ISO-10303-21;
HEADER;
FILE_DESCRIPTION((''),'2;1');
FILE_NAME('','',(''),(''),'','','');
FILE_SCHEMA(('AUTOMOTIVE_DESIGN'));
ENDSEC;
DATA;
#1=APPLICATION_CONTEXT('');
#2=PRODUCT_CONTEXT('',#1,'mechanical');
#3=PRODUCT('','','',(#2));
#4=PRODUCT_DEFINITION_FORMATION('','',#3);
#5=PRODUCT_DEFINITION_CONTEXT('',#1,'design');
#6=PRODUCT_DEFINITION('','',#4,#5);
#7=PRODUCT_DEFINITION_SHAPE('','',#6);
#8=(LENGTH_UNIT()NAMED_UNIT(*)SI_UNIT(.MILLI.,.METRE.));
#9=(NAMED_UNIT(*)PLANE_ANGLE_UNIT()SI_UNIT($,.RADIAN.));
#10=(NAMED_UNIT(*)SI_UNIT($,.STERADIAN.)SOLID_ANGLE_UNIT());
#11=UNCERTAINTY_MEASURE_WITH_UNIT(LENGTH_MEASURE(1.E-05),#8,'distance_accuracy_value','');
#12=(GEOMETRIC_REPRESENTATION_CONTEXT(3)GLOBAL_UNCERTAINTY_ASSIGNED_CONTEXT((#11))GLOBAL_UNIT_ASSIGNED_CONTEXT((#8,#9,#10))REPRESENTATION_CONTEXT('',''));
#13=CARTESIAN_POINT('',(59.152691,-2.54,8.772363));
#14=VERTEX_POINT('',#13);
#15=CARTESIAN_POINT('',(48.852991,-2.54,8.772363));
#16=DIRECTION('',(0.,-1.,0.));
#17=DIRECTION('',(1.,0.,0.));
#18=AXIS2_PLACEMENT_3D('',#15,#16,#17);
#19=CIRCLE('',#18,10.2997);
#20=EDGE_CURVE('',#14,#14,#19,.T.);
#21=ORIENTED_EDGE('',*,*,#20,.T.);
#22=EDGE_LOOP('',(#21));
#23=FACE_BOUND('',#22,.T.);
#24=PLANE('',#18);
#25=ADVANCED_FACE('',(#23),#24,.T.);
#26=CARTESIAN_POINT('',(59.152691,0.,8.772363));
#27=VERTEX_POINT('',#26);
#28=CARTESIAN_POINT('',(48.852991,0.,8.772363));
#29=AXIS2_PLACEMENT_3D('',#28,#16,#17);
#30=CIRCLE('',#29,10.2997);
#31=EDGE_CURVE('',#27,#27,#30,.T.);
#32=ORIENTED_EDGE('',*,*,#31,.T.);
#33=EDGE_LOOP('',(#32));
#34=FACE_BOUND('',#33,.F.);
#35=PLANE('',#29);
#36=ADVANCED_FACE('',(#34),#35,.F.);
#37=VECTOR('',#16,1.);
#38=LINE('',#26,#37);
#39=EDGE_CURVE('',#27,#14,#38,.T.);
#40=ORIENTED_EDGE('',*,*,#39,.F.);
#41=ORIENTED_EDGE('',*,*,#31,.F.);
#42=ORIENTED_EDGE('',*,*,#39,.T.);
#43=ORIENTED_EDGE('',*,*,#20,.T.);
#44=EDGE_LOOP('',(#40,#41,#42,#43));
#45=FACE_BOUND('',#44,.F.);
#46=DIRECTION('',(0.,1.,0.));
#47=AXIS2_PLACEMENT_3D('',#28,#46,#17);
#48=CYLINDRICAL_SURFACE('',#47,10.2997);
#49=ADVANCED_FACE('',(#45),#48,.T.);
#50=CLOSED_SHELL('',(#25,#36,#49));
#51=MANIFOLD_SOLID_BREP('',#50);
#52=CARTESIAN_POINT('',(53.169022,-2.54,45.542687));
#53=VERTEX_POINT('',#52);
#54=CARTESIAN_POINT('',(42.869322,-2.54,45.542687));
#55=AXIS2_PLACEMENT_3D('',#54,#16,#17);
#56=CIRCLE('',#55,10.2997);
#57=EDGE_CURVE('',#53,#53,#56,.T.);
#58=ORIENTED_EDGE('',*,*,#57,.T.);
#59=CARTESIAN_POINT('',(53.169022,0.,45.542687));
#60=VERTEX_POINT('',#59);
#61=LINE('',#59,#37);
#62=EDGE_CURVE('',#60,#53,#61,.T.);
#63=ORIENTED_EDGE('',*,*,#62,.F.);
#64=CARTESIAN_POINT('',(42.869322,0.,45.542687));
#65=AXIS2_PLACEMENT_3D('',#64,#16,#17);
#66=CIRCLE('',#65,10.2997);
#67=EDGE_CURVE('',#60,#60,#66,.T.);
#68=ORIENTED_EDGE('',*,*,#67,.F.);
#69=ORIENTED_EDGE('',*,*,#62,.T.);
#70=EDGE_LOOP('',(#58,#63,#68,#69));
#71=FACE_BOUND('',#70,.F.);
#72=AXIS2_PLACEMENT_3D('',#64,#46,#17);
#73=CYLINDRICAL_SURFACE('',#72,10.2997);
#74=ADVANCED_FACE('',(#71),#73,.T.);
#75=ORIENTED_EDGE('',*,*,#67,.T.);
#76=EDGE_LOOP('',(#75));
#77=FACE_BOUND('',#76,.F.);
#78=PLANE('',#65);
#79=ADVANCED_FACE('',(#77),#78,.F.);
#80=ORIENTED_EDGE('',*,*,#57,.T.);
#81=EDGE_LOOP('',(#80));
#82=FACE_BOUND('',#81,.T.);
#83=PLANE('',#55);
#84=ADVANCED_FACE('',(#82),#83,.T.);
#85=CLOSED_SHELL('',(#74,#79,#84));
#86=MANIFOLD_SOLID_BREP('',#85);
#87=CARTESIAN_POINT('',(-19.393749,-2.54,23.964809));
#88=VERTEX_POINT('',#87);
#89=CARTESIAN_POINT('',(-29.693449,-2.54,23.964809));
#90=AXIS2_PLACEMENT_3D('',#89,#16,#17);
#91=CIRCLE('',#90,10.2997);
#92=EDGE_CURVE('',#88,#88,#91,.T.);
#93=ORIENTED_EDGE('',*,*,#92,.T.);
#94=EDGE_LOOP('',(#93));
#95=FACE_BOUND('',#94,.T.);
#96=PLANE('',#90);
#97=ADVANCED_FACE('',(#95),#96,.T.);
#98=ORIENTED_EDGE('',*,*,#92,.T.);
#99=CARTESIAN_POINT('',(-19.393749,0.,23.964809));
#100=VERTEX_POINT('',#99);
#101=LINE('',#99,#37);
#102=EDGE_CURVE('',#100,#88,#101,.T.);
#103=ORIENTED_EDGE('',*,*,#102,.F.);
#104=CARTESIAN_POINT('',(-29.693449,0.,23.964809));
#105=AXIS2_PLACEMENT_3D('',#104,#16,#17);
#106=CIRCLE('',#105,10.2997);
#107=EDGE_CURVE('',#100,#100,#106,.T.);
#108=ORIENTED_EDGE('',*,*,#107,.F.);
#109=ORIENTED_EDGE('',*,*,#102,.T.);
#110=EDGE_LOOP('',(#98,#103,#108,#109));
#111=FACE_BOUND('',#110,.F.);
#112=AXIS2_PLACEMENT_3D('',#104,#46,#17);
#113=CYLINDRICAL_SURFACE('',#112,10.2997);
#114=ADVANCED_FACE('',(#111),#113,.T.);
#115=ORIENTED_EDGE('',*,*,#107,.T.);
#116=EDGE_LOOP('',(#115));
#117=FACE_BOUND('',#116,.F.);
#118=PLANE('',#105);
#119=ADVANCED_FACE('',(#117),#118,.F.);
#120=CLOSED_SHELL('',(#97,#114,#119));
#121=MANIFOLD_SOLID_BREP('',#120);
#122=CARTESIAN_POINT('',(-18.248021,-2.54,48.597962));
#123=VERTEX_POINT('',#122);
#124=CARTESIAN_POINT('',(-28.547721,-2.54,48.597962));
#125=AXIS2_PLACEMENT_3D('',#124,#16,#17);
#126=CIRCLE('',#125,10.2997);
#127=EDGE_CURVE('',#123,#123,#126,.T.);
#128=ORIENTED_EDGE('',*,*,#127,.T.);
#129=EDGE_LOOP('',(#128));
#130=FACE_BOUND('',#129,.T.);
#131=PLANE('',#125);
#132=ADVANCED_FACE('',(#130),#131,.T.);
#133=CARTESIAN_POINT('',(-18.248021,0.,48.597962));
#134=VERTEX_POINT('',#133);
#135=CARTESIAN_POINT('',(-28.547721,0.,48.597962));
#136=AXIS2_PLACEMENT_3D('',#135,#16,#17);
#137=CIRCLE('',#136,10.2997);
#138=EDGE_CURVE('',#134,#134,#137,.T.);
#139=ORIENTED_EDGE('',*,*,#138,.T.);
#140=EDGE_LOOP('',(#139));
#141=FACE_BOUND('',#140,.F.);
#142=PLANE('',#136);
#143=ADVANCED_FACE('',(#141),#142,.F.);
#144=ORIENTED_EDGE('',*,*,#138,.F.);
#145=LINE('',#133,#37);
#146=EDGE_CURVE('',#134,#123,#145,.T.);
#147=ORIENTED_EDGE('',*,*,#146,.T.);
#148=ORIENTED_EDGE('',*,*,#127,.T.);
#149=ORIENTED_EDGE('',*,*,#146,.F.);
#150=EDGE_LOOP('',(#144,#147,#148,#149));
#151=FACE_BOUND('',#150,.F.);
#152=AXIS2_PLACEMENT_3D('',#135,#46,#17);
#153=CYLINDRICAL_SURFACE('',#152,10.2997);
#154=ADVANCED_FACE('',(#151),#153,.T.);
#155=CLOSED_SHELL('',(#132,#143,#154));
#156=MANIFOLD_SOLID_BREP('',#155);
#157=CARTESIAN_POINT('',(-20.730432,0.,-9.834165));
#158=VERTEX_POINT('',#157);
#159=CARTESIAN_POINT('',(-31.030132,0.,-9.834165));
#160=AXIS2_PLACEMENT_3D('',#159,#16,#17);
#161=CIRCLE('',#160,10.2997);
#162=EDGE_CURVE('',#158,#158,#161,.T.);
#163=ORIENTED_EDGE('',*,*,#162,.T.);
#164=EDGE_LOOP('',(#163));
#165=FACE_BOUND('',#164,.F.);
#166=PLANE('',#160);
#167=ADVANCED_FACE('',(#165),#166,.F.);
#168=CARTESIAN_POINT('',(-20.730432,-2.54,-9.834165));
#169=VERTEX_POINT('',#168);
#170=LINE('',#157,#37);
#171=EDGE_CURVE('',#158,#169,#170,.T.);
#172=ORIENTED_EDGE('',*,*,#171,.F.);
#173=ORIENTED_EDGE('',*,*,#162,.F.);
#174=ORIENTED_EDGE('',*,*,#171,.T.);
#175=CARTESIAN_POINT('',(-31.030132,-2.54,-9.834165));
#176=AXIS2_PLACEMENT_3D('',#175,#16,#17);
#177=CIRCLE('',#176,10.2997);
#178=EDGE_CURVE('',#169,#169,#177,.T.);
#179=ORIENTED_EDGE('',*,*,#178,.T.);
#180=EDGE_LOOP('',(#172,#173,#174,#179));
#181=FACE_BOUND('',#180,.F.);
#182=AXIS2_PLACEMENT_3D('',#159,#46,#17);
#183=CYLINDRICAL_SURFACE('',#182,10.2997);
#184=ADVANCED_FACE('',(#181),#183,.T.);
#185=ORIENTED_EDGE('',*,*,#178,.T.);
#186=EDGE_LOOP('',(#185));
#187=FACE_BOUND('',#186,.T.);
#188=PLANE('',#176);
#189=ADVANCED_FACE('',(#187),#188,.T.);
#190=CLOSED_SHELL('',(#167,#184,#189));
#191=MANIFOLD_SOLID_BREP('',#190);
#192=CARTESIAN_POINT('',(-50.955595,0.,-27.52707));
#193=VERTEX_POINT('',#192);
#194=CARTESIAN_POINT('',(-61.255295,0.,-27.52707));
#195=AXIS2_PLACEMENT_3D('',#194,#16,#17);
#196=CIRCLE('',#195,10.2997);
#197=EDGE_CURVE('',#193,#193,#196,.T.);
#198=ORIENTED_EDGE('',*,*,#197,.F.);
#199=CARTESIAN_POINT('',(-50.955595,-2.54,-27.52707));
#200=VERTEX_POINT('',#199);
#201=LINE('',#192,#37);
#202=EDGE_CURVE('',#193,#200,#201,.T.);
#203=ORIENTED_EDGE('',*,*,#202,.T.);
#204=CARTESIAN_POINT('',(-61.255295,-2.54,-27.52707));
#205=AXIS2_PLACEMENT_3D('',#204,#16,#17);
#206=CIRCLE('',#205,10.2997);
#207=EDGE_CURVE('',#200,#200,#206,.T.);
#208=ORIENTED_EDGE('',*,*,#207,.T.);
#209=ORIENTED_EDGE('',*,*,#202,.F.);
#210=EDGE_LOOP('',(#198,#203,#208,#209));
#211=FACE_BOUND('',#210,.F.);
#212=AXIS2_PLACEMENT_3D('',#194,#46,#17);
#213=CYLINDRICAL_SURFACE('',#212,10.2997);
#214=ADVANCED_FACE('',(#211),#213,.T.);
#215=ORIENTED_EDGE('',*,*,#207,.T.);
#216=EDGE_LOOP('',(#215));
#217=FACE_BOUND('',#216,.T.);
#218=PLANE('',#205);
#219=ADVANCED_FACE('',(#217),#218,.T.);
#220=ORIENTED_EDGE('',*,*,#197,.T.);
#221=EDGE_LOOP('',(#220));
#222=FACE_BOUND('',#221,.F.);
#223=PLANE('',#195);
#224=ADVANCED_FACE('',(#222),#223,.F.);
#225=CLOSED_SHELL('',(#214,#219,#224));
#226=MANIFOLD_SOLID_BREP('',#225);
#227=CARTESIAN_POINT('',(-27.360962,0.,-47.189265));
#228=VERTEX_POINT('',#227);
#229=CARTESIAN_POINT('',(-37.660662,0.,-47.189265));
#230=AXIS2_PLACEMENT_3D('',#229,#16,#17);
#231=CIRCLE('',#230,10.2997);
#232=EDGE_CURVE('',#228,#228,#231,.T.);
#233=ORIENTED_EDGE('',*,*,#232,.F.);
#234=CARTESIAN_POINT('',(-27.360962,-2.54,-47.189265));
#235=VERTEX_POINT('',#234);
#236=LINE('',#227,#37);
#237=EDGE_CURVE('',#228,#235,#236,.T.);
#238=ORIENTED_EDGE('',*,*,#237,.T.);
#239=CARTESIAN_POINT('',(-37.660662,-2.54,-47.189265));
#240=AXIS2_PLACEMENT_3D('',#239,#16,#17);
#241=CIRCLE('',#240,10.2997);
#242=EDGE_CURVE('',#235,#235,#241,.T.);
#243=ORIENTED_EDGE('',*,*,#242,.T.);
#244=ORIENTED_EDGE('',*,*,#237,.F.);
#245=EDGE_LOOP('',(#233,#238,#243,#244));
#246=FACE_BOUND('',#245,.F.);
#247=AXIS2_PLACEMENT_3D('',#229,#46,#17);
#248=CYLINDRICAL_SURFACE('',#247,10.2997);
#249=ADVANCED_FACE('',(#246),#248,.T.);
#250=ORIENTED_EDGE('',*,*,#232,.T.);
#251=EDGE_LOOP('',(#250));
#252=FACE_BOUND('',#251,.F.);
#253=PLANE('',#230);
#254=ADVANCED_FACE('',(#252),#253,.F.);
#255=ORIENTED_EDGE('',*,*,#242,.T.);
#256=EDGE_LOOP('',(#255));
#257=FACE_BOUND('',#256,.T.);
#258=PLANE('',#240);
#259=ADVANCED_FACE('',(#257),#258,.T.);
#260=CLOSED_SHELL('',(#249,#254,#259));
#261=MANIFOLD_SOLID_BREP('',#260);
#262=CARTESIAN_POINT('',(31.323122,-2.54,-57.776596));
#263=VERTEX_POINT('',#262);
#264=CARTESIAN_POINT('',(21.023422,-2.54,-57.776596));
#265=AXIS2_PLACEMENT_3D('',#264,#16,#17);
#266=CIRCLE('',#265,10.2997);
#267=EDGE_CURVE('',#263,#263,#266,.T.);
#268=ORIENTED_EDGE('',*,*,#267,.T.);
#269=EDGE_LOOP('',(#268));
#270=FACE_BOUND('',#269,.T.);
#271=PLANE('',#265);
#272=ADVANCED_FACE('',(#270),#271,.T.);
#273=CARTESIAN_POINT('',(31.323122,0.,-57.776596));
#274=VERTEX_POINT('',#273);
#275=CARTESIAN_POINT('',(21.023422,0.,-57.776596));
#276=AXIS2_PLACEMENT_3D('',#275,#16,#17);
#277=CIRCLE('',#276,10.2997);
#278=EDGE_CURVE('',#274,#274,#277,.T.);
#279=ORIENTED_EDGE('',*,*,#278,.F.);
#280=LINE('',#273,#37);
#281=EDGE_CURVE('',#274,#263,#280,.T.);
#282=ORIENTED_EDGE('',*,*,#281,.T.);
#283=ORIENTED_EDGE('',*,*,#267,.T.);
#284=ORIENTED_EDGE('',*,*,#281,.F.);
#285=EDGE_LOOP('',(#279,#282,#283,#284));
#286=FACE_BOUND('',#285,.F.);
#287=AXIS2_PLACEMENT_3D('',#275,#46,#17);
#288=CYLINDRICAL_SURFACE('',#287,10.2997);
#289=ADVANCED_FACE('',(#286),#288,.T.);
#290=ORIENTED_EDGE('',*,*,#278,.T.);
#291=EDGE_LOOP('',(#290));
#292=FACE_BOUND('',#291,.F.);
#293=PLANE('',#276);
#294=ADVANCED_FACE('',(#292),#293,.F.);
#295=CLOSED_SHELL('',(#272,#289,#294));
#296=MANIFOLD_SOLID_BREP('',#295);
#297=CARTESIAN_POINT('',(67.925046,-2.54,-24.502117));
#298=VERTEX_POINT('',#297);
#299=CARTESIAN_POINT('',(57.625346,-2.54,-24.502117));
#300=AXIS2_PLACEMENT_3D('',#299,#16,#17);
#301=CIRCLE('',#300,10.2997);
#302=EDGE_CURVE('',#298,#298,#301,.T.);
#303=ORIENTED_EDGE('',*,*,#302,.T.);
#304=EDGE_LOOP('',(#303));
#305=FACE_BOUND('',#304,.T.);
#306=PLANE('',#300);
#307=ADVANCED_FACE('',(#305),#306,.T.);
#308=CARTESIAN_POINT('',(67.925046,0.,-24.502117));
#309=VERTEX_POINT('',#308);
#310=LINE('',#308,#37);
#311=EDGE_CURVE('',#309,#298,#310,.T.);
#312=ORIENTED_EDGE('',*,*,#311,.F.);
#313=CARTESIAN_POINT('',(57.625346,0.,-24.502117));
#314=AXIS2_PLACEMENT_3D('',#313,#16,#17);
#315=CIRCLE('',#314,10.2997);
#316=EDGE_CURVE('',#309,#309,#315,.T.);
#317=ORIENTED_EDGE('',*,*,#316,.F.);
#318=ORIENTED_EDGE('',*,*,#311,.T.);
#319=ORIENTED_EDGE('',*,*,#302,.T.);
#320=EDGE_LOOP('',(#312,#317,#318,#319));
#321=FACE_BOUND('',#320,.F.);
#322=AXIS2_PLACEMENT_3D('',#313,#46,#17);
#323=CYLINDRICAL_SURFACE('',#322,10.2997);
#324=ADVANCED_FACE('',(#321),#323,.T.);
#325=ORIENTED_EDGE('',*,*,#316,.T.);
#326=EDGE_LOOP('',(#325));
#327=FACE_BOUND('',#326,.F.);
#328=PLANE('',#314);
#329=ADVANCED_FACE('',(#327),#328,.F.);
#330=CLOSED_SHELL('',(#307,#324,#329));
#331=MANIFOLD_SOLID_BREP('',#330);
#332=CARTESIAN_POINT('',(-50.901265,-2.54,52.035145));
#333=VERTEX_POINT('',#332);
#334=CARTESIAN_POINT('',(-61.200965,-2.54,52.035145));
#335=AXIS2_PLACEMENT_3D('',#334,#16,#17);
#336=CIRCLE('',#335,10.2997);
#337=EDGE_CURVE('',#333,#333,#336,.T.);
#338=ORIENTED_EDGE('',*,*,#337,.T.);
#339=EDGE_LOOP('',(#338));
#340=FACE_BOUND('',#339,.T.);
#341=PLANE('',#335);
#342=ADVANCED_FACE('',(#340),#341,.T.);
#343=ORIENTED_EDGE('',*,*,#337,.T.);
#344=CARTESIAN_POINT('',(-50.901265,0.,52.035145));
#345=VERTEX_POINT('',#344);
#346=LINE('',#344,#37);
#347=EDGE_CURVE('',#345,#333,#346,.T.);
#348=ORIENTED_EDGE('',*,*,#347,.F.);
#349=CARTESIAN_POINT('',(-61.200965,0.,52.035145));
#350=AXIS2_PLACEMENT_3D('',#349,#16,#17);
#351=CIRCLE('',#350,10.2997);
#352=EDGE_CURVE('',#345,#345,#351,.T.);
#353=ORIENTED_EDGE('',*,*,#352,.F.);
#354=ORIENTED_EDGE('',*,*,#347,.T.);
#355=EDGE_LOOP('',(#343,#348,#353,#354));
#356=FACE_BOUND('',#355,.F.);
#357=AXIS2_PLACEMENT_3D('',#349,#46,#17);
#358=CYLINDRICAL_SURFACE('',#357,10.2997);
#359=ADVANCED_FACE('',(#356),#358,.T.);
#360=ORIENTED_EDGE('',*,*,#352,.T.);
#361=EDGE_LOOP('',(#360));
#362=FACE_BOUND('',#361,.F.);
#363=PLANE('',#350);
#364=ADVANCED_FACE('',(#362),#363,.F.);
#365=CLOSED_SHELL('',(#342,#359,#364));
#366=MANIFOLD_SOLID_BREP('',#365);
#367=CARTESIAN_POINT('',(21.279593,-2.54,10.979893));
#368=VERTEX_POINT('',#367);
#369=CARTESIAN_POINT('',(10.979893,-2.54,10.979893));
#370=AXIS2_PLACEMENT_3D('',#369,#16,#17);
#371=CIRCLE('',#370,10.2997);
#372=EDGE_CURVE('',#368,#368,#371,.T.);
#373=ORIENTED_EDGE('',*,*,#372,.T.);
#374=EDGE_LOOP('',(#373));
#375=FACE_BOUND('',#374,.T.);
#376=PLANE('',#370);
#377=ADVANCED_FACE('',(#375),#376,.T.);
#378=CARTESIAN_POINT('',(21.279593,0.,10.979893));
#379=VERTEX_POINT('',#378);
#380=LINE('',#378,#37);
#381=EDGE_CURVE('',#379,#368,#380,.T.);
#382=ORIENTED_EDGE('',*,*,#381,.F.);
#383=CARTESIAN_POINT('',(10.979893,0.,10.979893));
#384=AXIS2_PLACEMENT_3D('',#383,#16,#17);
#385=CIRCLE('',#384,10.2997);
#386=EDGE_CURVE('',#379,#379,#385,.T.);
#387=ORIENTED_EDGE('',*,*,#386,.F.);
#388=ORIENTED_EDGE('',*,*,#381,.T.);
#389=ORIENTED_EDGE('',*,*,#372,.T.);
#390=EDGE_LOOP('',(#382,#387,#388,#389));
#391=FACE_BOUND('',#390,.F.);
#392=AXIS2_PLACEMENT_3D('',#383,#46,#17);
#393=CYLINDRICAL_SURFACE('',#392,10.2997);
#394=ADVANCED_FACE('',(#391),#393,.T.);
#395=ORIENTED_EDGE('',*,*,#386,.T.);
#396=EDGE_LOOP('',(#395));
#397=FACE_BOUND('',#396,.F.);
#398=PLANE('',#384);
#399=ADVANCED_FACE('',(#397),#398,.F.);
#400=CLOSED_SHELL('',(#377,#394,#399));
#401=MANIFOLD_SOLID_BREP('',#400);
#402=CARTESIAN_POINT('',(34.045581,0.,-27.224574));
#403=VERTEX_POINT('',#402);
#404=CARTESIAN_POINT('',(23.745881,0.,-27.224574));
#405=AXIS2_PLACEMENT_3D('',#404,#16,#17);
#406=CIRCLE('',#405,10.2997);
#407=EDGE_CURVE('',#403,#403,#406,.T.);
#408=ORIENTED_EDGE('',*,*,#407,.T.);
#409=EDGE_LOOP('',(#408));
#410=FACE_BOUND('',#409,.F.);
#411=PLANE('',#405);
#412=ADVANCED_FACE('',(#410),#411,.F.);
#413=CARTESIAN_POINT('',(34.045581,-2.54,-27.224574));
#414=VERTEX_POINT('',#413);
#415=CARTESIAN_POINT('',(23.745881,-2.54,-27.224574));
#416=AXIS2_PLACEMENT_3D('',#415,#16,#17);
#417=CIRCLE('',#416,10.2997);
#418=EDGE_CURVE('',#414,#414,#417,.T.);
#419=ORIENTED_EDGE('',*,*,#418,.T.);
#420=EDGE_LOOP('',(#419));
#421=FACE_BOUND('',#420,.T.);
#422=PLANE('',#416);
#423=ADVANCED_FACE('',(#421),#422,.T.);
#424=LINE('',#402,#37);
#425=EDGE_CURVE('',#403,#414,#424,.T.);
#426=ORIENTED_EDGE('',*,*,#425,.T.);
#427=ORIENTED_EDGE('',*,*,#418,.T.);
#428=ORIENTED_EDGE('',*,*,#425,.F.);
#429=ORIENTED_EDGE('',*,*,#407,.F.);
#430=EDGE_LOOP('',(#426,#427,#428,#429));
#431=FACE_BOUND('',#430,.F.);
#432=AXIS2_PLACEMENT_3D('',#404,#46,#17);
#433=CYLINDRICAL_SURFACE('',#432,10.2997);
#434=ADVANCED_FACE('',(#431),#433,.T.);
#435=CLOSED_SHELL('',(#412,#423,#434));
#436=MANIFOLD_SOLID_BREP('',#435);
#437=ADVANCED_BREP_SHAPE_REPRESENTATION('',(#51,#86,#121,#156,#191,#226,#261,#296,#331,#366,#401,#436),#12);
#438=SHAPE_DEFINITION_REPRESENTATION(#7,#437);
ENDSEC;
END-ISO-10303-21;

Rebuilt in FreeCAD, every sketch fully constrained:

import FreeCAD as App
import Part
import Sketcher

V = App.Vector
Q = App.Units.Quantity

doc = App.newDocument("Part")
body = doc.addObject("PartDesign::Body", "Body")
body.AllowCompound = True

# Sketch on XZ plane
sketch1 = body.newObject("Sketcher::SketchObject", "Sketch")
sketch1.AttachmentSupport = (doc.getObject("XZ_Plane"), [""])
sketch1.MapMode = "FlatFace"
sketch1.addGeometry([
    Part.Circle(V(-61, 52, 0), V(0, 0, 1), 10),  # 0
    Part.Circle(V(-29, 49, 0), V(0, 0, 1), 10),  # 1
    Part.Circle(V(43, 46, 0), V(0, 0, 1), 10),  # 2
    Part.Circle(V(-30, 24, 0), V(0, 0, 1), 10),  # 3
    Part.Circle(V(11, 11, 0), V(0, 0, 1), 10),  # 4
    Part.Circle(V(-31, -10, 0), V(0, 0, 1), 10),  # 5
], False)
sketch1.addConstraint([
    Sketcher.Constraint("Equal", 0, 1),
    Sketcher.Constraint("Equal", 1, 2),
    Sketcher.Constraint("Equal", 2, 3),
    Sketcher.Constraint("Equal", 3, 4),
    Sketcher.Constraint("Equal", 4, 5),
    Sketcher.Constraint("Diameter", 0, Q("0.811 in")),
    Sketcher.Constraint("DistanceX", 1, 3, -1, 1, Q("28.547721 mm")),
    Sketcher.Constraint("DistanceX", -1, 1, 2, 3, Q("42.869322 mm")),
    Sketcher.Constraint("DistanceX", 3, 3, -1, 1, Q("29.693449 mm")),
    Sketcher.Constraint("DistanceY", -1, 1, 3, 3, Q("23.964809 mm")),
    Sketcher.Constraint("DistanceX", 5, 3, -1, 1, Q("31.030132 mm")),
    Sketcher.Constraint("DistanceY", 3, 3, 2, 3, Q("21.577878 mm")),
    Sketcher.Constraint("DistanceX", 4, 3, 2, 3, Q("31.889429 mm")),
    Sketcher.Constraint("DistanceY", 4, 3, 1, 3, Q("37.618069 mm")),
    Sketcher.Constraint("DistanceX", 0, 3, 4, 3, Q("72.180858 mm")),
    Sketcher.Constraint("DistanceY", 4, 3, 0, 3, Q("41.055252 mm")),
    Sketcher.Constraint("DistanceY", 5, 3, 4, 3, Q("20.814058 mm")),
    Sketcher.Constraint("DistanceY", -1, 1, 0, 3, Q("52.035145 mm")),
])
pad1 = body.newObject("PartDesign::Pad", "Pad")
pad1.Profile = sketch1
pad1.Length = Q("0.1 in")
body2 = doc.addObject("PartDesign::Body", "Body001")
body2.AllowCompound = True

# Sketch on XZ plane
sketch2 = body2.newObject("Sketcher::SketchObject", "Sketch001")
sketch2.AttachmentSupport = (doc.getObject("XZ_Plane001"), [""])
sketch2.MapMode = "FlatFace"
sketch2.addGeometry([
    Part.Circle(V(24, -27, 0), V(0, 0, 1), 10),  # 0
    Part.Circle(V(-61, -28, 0), V(0, 0, 1), 10),  # 1
    Part.Circle(V(21, -58, 0), V(0, 0, 1), 10),  # 2
    Part.Circle(V(-38, -47, 0), V(0, 0, 1), 10),  # 3
    Part.Circle(V(58, -25, 0), V(0, 0, 1), 10),  # 4
    Part.Circle(V(49, 9, 0), V(0, 0, 1), 10),  # 5
], False)
sketch2.addConstraint([
    Sketcher.Constraint("Equal", 0, 1),
    Sketcher.Constraint("Equal", 1, 2),
    Sketcher.Constraint("Equal", 2, 3),
    Sketcher.Constraint("Equal", 3, 4),
    Sketcher.Constraint("Equal", 4, 5),
    Sketcher.Constraint("Diameter", 0, Q("0.811 in")),
    Sketcher.Constraint("DistanceX", -1, 1, 0, 3, Q("23.745881 mm")),
    Sketcher.Constraint("DistanceY", 1, 3, -1, 1, Q("27.52707 mm")),
    Sketcher.Constraint("DistanceX", -1, 1, 2, 3, Q("21.023422 mm")),
    Sketcher.Constraint("DistanceX", -1, 1, 5, 3, Q("48.852991 mm")),
    Sketcher.Constraint("DistanceY", 2, 3, 0, 3, Q("30.552022 mm")),
    Sketcher.Constraint("DistanceY", 2, 3, 3, 3, Q("10.587331 mm")),
    Sketcher.Constraint("DistanceY", 2, 3, 4, 3, Q("33.274479 mm")),
    Sketcher.Constraint("DistanceX", 3, 3, 4, 3, Q("95.286008 mm")),
    Sketcher.Constraint("DistanceX", 1, 3, 4, 3, Q("118.880641 mm")),
    Sketcher.Constraint("DistanceY", 4, 3, 5, 3, Q("33.27448 mm")),
    Sketcher.Constraint("DistanceY", 0, 3, -1, 1, Q("27.224574 mm")),
    Sketcher.Constraint("DistanceX", 1, 3, -1, 1, Q("61.255295 mm")),
])
pad2 = body2.newObject("PartDesign::Pad", "Pad001")
pad2.Profile = sketch2
pad2.Length = Q("0.1 in")

doc.recompute()
